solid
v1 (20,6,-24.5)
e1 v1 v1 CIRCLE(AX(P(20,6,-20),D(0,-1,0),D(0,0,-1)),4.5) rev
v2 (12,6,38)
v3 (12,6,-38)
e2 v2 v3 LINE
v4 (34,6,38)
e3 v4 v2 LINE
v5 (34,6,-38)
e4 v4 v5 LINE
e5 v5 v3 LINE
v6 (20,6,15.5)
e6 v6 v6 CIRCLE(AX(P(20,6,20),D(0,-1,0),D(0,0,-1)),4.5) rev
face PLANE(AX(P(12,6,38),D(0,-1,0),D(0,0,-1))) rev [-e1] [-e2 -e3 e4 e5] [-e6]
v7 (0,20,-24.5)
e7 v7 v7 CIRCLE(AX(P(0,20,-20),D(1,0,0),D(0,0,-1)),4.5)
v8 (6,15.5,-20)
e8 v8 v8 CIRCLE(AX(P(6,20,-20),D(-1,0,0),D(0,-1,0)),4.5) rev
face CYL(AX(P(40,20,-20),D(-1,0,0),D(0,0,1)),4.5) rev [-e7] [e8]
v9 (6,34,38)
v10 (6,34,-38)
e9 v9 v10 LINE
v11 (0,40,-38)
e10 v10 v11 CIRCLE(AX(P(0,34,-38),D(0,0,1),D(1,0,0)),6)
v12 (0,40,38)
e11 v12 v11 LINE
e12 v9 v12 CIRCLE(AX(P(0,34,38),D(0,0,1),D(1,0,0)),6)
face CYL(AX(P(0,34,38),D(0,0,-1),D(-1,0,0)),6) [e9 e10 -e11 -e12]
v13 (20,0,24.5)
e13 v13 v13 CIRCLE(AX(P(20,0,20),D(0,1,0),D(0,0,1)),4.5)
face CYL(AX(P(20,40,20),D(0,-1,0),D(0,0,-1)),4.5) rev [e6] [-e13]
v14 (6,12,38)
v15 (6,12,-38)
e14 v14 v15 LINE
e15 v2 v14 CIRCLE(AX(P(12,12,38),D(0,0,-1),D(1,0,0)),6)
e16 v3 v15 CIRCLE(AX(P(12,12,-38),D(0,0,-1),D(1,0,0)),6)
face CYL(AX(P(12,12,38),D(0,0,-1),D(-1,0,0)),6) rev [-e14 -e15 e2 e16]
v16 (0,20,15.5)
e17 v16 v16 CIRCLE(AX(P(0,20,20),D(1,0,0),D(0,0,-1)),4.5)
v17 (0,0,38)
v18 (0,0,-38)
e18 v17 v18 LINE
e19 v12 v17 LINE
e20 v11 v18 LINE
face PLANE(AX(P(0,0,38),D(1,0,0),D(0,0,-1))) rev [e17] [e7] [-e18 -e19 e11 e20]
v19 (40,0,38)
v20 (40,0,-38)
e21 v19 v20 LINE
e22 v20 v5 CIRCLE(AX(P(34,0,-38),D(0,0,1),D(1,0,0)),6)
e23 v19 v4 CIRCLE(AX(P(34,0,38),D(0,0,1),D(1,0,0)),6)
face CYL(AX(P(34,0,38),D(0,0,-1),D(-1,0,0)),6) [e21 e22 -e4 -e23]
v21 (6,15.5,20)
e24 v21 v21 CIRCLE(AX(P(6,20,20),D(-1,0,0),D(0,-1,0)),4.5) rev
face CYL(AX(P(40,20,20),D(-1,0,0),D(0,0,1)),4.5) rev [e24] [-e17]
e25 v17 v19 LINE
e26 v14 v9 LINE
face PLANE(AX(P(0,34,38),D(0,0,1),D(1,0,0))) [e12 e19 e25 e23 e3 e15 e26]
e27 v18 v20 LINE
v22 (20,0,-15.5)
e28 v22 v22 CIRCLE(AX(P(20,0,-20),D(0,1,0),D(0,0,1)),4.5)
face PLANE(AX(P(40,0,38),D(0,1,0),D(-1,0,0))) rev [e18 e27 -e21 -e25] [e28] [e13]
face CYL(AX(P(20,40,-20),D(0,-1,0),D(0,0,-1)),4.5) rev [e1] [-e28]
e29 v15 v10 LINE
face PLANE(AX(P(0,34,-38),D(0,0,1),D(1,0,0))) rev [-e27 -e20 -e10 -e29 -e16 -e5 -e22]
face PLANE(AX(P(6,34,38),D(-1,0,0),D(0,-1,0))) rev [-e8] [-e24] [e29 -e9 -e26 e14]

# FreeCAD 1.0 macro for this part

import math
import FreeCAD as App
import Part
import Sketcher

V = App.Vector
Q = App.Units.Quantity

doc = App.newDocument("Part")
body = doc.addObject("PartDesign::Body", "Body")

# Sketch on XY plane
sketch1 = doc.addObject("Sketcher::SketchObject", "Sketch")
body.addObject(sketch1)
sketch1.AttachmentSupport = (doc.XY_Plane, [""])
sketch1.MapMode = "FlatFace"
sketch1.addGeometry([
    Part.LineSegment(V(0, 40, 0), V(0, 0, 0)),  # 0
    Part.LineSegment(V(0, 0, 0), V(40, 0, 0)),  # 1
    Part.ArcOfCircle(Part.Circle(V(34, 0, 0), V(0, 0, 1), 6), math.radians(0), math.radians(90)),  # 2
    Part.LineSegment(V(34, 6, 0), V(12, 6, 0)),  # 3
    Part.ArcOfCircle(Part.Circle(V(12, 12, 0), V(0, 0, 1), 6), math.radians(180), math.radians(270)),  # 4
    Part.LineSegment(V(6, 12, 0), V(6, 34, 0)),  # 5
    Part.ArcOfCircle(Part.Circle(V(0, 34, 0), V(0, 0, 1), 6), math.radians(0), math.radians(90)),  # 6
], False)
sketch1.addConstraint([
    Sketcher.Constraint("Coincident", 0, 2, 1, 1),
    Sketcher.Constraint("Coincident", 1, 2, 2, 1),
    Sketcher.Constraint("Tangent", 2, 2, 3, 1),
    Sketcher.Constraint("Tangent", 3, 2, 4, 2),
    Sketcher.Constraint("Tangent", 4, 1, 5, 1),
    Sketcher.Constraint("Tangent", 5, 2, 6, 1),
    Sketcher.Constraint("Coincident", 6, 2, 0, 1),
    Sketcher.Constraint("Vertical", 0),
    Sketcher.Constraint("Horizontal", 1),
    Sketcher.Constraint("Horizontal", 3),
    Sketcher.Constraint("Vertical", 5),
    Sketcher.Constraint("Coincident", 0, 2, -1, 1),
    Sketcher.Constraint("Equal", 2, 4),
    Sketcher.Constraint("Equal", 4, 6),
    Sketcher.Constraint("PointOnObject", 2, 3, -1),
    Sketcher.Constraint("PointOnObject", 6, 3, -2),
    Sketcher.Constraint("Equal", 1, 0),
    Sketcher.Constraint("Radius", 2, Q("6 mm")),
    Sketcher.Constraint("DistanceX", 1, 1, 1, 2, Q("40 mm")),
])
pad1 = doc.addObject("PartDesign::Pad", "Pad")
body.addObject(pad1)
pad1.Profile = sketch1
pad1.Length = 76
pad1.Midplane = True

# Sketch on XZ plane
sketch2 = doc.addObject("Sketcher::SketchObject", "Sketch001")
body.addObject(sketch2)
sketch2.AttachmentSupport = (doc.XZ_Plane, [""])
sketch2.MapMode = "FlatFace"
sketch2.addGeometry([
    Part.Circle(V(20, 20, 0), V(0, 0, 1), 4.5),
    Part.Circle(V(20, -20, 0), V(0, 0, 1), 4.5),
], False)
sketch2.addConstraint([
    Sketcher.Constraint("Equal", 0, 1),
    Sketcher.Constraint("Symmetric", 0, 3, 1, 3, -1),
    Sketcher.Constraint("Diameter", 0, Q("9 mm")),
    Sketcher.Constraint("DistanceX", -1, 1, 0, 3, Q("20 mm")),
    Sketcher.Constraint("DistanceY", -1, 1, 0, 3, Q("20 mm")),
])
pocket1 = doc.addObject("PartDesign::Pocket", "Pocket")
body.addObject(pocket1)
pocket1.Profile = sketch2
pocket1.Type = "ThroughAll"

# Sketch on YZ plane
sketch3 = doc.addObject("Sketcher::SketchObject", "Sketch002")
body.addObject(sketch3)
sketch3.AttachmentSupport = (doc.YZ_Plane, [""])
sketch3.MapMode = "FlatFace"
sketch3.addGeometry([
    Part.Circle(V(20, 20, 0), V(0, 0, 1), 4.5),
    Part.Circle(V(20, -20, 0), V(0, 0, 1), 4.5),
], False)
sketch3.addConstraint([
    Sketcher.Constraint("Equal", 0, 1),
    Sketcher.Constraint("Symmetric", 0, 3, 1, 3, -1),
    Sketcher.Constraint("Diameter", 0, Q("9 mm")),
    Sketcher.Constraint("DistanceX", -1, 1, 0, 3, Q("20 mm")),
    Sketcher.Constraint("DistanceY", -1, 1, 0, 3, Q("20 mm")),
])
pocket2 = doc.addObject("PartDesign::Pocket", "Pocket001")
body.addObject(pocket2)
pocket2.Profile = sketch3
pocket2.Type = "ThroughAll"
pocket2.Reversed = True

doc.recompute()
